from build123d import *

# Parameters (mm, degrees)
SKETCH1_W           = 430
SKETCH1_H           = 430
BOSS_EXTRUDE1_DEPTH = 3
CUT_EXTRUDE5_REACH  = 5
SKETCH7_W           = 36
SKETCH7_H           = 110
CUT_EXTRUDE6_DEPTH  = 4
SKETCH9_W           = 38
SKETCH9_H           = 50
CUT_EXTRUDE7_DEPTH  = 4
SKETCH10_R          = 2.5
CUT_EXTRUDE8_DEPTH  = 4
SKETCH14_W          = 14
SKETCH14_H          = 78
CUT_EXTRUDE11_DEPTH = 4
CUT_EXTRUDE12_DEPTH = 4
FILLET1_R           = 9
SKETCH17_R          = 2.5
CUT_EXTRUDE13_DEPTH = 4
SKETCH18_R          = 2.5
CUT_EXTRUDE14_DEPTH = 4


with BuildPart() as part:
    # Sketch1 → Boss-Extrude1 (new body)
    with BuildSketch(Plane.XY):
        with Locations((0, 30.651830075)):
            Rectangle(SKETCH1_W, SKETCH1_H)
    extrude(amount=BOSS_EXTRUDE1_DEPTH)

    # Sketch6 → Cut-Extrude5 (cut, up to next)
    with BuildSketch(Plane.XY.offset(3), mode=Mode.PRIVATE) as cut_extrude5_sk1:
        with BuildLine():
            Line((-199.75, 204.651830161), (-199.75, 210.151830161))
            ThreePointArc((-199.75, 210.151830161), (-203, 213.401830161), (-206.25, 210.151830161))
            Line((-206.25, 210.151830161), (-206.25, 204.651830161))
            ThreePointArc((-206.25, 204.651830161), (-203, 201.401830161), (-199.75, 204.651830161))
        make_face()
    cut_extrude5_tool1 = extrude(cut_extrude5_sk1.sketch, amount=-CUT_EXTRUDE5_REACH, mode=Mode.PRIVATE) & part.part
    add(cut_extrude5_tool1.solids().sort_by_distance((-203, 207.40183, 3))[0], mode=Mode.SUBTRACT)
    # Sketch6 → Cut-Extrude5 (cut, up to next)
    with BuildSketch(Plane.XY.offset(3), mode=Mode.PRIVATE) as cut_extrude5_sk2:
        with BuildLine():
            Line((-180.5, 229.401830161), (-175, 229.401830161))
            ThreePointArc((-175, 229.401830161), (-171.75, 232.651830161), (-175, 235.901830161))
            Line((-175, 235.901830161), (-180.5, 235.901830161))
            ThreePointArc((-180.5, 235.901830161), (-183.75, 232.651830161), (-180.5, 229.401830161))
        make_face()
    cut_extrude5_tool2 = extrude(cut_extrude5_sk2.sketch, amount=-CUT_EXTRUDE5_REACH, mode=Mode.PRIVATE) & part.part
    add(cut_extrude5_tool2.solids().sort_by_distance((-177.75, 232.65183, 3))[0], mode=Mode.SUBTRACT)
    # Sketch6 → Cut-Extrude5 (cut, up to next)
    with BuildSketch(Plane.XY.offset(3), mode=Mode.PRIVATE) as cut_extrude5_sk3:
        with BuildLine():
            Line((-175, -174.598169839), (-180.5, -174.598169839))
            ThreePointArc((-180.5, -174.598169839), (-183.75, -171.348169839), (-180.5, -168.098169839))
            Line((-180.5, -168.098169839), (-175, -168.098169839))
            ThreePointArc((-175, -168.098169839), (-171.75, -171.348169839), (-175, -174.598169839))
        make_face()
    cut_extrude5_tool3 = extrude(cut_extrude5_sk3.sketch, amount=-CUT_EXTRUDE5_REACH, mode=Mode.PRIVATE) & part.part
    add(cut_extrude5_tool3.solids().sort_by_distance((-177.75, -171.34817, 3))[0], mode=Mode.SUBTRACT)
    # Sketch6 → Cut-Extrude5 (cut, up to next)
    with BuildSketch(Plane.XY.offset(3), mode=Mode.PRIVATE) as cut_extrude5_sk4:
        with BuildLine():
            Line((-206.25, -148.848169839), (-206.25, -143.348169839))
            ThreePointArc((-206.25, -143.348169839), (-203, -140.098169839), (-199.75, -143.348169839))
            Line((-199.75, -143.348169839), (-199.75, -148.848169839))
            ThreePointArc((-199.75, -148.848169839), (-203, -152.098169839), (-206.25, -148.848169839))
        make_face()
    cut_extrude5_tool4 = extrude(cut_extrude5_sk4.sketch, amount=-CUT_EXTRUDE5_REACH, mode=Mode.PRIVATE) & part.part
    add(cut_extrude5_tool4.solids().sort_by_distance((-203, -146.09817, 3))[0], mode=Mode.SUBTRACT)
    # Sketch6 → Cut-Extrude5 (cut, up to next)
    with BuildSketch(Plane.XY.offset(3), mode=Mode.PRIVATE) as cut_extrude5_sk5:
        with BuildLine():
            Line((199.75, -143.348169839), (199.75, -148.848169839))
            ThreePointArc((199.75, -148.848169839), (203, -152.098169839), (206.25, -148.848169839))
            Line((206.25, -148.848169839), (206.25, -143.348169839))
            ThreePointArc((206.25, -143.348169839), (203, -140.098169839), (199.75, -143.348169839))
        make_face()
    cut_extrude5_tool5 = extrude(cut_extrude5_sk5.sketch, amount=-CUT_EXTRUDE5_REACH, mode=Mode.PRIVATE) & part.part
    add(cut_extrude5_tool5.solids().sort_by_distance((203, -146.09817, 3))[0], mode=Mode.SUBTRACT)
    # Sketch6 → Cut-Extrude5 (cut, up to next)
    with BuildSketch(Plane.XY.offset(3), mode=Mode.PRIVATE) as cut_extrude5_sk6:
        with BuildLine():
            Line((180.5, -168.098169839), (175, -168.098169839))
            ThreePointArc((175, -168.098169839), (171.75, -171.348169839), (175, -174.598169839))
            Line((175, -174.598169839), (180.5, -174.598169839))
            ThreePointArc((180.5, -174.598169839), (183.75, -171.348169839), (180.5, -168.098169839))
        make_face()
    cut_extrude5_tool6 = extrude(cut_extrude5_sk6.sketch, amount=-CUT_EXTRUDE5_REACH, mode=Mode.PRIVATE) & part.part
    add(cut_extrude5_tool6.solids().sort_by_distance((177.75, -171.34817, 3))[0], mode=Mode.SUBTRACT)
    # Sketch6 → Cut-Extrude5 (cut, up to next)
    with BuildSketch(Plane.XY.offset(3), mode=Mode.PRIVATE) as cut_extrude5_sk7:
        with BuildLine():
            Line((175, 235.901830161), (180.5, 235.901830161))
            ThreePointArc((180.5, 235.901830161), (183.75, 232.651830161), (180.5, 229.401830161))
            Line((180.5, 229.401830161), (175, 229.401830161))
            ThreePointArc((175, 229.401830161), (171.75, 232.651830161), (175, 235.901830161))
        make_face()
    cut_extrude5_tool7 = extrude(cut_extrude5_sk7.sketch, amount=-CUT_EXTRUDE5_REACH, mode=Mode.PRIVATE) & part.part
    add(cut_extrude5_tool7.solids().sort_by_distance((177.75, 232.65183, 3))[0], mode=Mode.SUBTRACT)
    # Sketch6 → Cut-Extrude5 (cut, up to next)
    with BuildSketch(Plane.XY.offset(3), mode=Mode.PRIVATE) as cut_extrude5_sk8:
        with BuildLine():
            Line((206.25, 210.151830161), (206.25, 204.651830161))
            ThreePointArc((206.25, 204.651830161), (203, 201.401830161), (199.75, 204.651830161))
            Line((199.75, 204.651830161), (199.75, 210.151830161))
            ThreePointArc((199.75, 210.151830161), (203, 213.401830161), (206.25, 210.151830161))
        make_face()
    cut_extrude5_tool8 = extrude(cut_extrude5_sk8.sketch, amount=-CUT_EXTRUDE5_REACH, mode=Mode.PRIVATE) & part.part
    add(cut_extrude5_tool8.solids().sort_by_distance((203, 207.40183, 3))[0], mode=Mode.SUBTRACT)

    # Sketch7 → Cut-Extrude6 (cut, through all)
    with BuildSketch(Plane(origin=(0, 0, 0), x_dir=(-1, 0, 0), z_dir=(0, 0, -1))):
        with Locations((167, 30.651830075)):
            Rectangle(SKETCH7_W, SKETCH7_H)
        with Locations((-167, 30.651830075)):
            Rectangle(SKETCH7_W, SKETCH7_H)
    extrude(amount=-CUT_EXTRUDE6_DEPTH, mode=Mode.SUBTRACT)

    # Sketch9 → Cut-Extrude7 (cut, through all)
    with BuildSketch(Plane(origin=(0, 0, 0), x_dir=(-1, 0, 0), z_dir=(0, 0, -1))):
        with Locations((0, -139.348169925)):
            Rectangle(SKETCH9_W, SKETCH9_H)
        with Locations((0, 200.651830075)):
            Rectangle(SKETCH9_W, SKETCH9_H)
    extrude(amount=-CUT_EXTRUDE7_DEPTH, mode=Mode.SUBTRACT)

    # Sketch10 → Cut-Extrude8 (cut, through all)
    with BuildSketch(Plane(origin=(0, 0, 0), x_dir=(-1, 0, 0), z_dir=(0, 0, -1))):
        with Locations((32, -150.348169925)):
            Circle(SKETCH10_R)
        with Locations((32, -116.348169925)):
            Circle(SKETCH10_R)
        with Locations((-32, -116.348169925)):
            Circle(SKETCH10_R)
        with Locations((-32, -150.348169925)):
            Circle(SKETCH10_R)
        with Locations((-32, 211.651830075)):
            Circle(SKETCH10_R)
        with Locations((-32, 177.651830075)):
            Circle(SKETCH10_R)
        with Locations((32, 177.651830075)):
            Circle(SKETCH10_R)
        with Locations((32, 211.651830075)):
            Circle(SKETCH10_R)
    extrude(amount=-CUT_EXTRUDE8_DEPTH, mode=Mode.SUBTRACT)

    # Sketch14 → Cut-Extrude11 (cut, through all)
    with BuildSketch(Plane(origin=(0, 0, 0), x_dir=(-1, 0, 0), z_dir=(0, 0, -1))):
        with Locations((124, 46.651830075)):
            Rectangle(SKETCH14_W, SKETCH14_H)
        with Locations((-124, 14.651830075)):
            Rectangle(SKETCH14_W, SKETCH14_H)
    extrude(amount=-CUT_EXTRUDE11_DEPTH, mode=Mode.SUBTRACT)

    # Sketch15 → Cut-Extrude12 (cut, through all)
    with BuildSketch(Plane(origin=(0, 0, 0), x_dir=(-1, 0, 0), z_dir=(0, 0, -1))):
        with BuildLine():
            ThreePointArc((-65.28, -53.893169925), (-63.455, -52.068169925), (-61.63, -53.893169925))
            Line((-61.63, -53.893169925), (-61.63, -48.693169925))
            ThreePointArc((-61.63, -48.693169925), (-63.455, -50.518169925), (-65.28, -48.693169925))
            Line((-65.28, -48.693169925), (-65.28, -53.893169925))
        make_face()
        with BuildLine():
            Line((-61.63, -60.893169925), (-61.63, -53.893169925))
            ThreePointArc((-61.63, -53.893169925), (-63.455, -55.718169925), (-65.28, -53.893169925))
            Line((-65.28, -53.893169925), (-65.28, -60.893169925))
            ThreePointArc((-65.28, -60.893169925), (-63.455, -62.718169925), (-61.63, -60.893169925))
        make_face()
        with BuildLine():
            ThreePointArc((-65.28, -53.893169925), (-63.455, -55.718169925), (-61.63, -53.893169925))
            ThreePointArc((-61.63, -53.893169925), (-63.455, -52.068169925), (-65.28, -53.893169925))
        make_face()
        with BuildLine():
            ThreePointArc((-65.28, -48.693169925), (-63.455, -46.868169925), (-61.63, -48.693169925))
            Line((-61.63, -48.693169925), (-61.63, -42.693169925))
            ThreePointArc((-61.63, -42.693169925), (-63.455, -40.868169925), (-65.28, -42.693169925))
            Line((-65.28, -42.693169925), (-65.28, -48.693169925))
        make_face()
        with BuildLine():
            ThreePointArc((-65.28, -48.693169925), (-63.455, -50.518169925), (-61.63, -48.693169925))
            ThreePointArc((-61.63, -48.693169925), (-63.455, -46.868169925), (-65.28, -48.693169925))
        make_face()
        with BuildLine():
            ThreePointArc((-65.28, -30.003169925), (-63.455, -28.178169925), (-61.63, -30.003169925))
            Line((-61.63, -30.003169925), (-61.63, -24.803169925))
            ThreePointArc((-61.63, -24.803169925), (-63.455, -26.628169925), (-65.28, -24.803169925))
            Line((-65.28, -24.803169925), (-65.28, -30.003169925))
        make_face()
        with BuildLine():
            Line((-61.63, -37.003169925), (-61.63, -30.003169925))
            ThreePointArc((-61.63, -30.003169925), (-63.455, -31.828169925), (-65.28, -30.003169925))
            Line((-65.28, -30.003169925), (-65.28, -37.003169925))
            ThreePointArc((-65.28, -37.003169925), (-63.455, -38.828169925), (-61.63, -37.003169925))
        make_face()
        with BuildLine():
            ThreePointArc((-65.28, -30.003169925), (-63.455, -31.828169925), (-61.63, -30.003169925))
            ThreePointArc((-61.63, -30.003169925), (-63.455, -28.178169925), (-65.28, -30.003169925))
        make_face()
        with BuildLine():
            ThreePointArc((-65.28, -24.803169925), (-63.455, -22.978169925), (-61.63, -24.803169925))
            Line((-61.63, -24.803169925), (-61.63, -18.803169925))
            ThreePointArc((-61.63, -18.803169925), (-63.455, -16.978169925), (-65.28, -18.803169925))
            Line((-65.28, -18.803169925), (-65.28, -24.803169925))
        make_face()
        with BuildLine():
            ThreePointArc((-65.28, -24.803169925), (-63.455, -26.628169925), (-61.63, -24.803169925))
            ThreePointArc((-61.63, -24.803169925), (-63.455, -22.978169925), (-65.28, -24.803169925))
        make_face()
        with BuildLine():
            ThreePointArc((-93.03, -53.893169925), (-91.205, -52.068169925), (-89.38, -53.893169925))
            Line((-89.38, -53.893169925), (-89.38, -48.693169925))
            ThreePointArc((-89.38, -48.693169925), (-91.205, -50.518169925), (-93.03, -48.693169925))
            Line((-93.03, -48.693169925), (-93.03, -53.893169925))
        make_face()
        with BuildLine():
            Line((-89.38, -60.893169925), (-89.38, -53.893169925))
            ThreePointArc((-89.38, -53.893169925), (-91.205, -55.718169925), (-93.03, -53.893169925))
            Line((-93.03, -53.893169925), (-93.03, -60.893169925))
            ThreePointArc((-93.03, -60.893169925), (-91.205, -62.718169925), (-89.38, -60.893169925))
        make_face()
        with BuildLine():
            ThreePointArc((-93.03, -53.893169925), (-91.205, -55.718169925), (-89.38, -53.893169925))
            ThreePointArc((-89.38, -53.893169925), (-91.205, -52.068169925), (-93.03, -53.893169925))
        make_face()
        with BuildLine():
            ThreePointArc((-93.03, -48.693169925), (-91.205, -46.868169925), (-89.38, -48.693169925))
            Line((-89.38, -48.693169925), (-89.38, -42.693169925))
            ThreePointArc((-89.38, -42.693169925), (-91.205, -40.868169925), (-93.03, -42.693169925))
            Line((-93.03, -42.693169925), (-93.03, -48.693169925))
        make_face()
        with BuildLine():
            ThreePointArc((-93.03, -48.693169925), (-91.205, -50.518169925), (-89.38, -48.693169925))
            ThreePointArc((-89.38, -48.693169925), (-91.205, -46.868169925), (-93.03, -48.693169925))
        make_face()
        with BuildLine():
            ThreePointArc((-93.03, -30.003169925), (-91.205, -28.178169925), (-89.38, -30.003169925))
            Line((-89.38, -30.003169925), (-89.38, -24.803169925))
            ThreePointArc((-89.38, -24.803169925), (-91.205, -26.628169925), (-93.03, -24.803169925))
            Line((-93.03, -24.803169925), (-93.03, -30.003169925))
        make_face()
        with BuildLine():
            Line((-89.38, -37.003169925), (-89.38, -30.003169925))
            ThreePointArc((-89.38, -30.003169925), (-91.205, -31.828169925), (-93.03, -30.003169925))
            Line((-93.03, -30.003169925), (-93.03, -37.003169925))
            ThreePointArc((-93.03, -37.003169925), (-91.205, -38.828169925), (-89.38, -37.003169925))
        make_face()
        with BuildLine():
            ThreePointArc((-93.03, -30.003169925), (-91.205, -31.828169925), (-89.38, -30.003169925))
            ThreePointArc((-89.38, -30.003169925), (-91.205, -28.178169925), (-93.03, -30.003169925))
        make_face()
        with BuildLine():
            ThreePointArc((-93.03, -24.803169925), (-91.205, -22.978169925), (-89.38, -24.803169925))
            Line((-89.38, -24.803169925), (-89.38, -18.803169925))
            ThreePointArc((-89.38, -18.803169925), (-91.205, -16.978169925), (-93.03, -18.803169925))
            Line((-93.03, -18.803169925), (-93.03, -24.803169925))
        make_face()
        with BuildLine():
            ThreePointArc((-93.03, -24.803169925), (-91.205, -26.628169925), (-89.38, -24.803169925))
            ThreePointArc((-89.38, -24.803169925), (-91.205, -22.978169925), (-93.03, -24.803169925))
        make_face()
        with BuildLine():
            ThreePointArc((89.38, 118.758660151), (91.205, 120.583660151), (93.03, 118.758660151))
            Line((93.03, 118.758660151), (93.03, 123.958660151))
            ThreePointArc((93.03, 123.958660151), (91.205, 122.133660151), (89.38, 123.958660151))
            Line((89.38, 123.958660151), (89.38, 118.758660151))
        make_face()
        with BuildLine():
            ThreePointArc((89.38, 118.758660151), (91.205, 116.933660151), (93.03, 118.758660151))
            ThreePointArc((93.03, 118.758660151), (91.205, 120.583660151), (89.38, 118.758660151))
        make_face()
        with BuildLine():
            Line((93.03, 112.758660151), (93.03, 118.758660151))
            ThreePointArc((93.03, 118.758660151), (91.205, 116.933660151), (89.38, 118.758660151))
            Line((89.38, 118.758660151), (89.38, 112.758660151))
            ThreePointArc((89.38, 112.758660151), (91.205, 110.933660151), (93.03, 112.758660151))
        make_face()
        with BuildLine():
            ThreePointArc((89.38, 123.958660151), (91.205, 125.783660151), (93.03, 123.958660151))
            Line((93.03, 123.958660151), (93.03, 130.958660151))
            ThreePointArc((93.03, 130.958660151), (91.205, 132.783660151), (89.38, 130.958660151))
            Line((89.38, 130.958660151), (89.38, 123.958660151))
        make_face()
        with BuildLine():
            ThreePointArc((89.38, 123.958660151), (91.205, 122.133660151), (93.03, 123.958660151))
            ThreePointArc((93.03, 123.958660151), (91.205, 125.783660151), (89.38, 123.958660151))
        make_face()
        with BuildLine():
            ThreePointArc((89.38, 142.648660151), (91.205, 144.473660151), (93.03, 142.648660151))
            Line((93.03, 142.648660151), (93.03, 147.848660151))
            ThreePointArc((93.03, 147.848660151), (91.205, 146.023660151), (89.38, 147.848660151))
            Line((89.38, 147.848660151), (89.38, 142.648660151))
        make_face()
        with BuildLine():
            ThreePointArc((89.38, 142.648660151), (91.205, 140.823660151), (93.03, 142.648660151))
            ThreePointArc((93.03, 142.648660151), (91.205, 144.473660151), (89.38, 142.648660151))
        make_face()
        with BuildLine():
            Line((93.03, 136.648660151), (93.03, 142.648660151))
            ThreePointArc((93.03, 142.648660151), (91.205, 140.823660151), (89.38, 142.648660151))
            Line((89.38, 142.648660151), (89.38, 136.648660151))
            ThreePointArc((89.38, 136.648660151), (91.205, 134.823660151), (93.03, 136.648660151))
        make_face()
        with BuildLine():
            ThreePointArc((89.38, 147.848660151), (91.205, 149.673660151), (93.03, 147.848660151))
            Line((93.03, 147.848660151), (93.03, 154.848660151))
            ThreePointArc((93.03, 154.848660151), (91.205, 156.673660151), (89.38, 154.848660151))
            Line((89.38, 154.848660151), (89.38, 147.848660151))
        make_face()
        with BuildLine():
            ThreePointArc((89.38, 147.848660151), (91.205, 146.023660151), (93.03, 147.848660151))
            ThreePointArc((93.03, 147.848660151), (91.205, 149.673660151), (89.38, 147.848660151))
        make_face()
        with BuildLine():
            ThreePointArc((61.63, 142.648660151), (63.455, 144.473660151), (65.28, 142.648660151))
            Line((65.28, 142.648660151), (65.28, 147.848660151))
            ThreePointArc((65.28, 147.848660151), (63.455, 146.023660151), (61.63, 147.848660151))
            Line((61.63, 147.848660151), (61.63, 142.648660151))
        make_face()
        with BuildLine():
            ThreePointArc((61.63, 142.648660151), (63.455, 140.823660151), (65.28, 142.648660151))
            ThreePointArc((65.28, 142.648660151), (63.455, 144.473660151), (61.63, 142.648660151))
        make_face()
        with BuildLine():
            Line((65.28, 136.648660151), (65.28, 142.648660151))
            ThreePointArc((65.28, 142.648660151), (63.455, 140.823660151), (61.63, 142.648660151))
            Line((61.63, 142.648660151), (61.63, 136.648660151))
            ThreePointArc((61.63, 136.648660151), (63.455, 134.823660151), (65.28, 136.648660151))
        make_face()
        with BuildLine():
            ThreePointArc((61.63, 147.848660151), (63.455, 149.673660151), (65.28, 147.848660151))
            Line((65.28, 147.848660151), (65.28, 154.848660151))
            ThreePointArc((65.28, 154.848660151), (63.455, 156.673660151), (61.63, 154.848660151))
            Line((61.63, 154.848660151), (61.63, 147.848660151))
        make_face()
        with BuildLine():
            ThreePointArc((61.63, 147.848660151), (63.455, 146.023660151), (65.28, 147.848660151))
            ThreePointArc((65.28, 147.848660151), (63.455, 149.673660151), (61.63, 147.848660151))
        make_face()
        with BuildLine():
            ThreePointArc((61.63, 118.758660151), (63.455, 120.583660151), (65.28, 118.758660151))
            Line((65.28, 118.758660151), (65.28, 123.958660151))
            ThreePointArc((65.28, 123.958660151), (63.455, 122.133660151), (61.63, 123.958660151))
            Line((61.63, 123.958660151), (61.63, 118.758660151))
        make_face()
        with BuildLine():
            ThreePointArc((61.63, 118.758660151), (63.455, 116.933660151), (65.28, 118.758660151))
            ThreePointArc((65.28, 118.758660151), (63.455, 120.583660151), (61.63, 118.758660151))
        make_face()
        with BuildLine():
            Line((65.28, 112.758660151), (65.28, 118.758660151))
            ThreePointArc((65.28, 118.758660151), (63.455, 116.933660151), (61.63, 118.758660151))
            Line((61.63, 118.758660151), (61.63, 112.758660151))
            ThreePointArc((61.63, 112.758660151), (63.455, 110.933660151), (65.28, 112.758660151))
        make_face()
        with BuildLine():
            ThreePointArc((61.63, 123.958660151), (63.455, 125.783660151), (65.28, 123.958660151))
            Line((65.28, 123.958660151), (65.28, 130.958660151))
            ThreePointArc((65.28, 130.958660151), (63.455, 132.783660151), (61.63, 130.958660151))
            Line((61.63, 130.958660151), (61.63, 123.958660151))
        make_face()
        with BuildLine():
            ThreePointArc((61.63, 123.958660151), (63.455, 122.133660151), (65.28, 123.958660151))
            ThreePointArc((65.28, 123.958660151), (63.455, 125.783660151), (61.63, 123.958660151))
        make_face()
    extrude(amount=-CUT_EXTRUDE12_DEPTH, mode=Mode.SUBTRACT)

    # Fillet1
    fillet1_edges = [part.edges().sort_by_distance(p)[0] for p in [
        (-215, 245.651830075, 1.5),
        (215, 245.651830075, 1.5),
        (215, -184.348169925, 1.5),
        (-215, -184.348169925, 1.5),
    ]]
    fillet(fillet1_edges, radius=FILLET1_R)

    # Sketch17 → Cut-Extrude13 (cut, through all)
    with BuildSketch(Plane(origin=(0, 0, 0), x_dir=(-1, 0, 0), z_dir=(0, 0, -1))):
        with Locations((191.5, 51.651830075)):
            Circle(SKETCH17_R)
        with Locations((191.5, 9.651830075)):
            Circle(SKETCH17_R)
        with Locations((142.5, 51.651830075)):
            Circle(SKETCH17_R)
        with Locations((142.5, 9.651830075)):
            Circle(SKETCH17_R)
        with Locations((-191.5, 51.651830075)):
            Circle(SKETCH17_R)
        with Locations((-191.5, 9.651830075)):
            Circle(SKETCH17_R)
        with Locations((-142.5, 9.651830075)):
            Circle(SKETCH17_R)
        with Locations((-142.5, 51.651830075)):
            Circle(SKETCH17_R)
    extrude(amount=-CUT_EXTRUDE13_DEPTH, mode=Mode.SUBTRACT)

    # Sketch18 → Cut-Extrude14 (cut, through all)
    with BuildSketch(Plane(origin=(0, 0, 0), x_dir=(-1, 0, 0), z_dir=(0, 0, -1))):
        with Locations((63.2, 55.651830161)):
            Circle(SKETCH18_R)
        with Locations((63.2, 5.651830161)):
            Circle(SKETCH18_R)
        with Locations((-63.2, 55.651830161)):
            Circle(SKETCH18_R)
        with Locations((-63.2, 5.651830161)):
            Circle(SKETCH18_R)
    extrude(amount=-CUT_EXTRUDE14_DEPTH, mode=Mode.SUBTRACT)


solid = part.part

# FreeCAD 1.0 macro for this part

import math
import FreeCAD as App
import Part
import Sketcher

V = App.Vector
Q = App.Units.Quantity


def edges_at(feature, points):
    """Names of the edges that pass closest to the given points."""
    edges = feature.Shape.Edges
    near = lambda p: min(range(len(edges)), key=lambda i: edges[i].distToShape(Part.Vertex(*p))[0])
    return sorted({f"Edge{near(p) + 1}" for p in points})


def add_polygon(sketch, points):
    """Adds a closed chain of lines whose ends are joined by coincident constraints."""
    first, n = sketch.GeometryCount, len(points)
    for a, b in zip(points, points[1:] + points[:1]):
        sketch.addGeometry(Part.LineSegment(App.Vector(*a, 0), App.Vector(*b, 0)), False)
    for i in range(n):
        sketch.addConstraint(Sketcher.Constraint("Coincident", first + i, 2, first + (i + 1) % n, 1))

doc = App.newDocument("Part")
body = doc.addObject("PartDesign::Body", "Body")

# Sketch on XY plane
sketch1 = doc.addObject("Sketcher::SketchObject", "Sketch")
body.addObject(sketch1)
sketch1.AttachmentSupport = (doc.XY_Plane, [""])
sketch1.MapMode = "FlatFace"
add_polygon(sketch1, [(-215, 246), (-215, -184), (215, -184), (215, 246)])  # lines 0-3
sketch1.addConstraint(Sketcher.Constraint("Vertical", 0))
sketch1.addConstraint(Sketcher.Constraint("Horizontal", 1))
sketch1.addConstraint(Sketcher.Constraint("Vertical", 2))
sketch1.addConstraint(Sketcher.Constraint("Horizontal", 3))
sketch1.addConstraint(Sketcher.Constraint("Equal", 3, 0))
sketch1.addConstraint(Sketcher.Constraint("DistanceX", 1, 1, 1, 2, Q("430 mm")))
sketch1.addConstraint(Sketcher.Constraint("DistanceX", 0, 2, -1, 1, Q("215 mm")))
sketch1.addConstraint(Sketcher.Constraint("DistanceY", 0, 2, -1, 1, Q("184.34817 mm")))
pad1 = doc.addObject("PartDesign::Pad", "Pad")
body.addObject(pad1)
pad1.Profile = sketch1
pad1.Length = 3

# Sketch on XY plane
sketch2 = doc.addObject("Sketcher::SketchObject", "Sketch001")
body.addObject(sketch2)
sketch2.AttachmentSupport = (doc.XY_Plane, [""])
sketch2.MapMode = "FlatFace"
sketch2.AttachmentOffset = App.Placement(V(0, 0, 3), App.Rotation())
sketch2.addGeometry(Part.LineSegment(V(-199.8, 204.7, 0), V(-199.8, 210.2, 0)), False)
sketch2.addGeometry(Part.ArcOfCircle(Part.Circle(V(-203, 210.2, 0), V(0, 0, 1), 3.2), math.radians(0), math.radians(180)), False)
sketch2.addGeometry(Part.LineSegment(V(-206.2, 210.2, 0), V(-206.2, 204.7, 0)), False)
sketch2.addGeometry(Part.ArcOfCircle(Part.Circle(V(-203, 204.7, 0), V(0, 0, 1), 3.2), math.radians(180), math.radians(360)), False)
sketch2.addConstraint(Sketcher.Constraint("Tangent", 0, 2, 1, 1))
sketch2.addConstraint(Sketcher.Constraint("Tangent", 1, 2, 2, 1))
sketch2.addConstraint(Sketcher.Constraint("Tangent", 2, 2, 3, 1))
sketch2.addConstraint(Sketcher.Constraint("Tangent", 3, 2, 0, 1))
sketch2.addConstraint(Sketcher.Constraint("Vertical", 0))
sketch2.addConstraint(Sketcher.Constraint("Vertical", 2))
sketch2.addConstraint(Sketcher.Constraint("Radius", 1, Q("3.25 mm")))
sketch2.addConstraint(Sketcher.Constraint("DistanceY", 0, 1, 0, 2, Q("5.5 mm")))
sketch2.addConstraint(Sketcher.Constraint("DistanceX", 1, 3, -1, 1, Q("203 mm")))
sketch2.addConstraint(Sketcher.Constraint("DistanceY", -1, 1, 1, 3, Q("210.15183 mm")))
pocket1 = doc.addObject("PartDesign::Pocket", "Pocket")
body.addObject(pocket1)
pocket1.Profile = sketch2
pocket1.Type = "UpToFirst"

# Sketch on XY plane
sketch3 = doc.addObject("Sketcher::SketchObject", "Sketch002")
body.addObject(sketch3)
sketch3.AttachmentSupport = (doc.XY_Plane, [""])
sketch3.MapMode = "FlatFace"
sketch3.AttachmentOffset = App.Placement(V(0, 0, 3), App.Rotation())
sketch3.addGeometry(Part.LineSegment(V(-180.5, 229.4, 0), V(-175, 229.4, 0)), False)
sketch3.addGeometry(Part.ArcOfCircle(Part.Circle(V(-175, 232.7, 0), V(0, 0, 1), 3.2), math.radians(-90), math.radians(90)), False)
sketch3.addGeometry(Part.LineSegment(V(-175, 235.9, 0), V(-180.5, 235.9, 0)), False)
sketch3.addGeometry(Part.ArcOfCircle(Part.Circle(V(-180.5, 232.7, 0), V(0, 0, 1), 3.2), math.radians(90), math.radians(270)), False)
sketch3.addConstraint(Sketcher.Constraint("Tangent", 0, 2, 1, 1))
sketch3.addConstraint(Sketcher.Constraint("Tangent", 1, 2, 2, 1))
sketch3.addConstraint(Sketcher.Constraint("Tangent", 2, 2, 3, 1))
sketch3.addConstraint(Sketcher.Constraint("Tangent", 3, 2, 0, 1))
sketch3.addConstraint(Sketcher.Constraint("Horizontal", 0))
sketch3.addConstraint(Sketcher.Constraint("Horizontal", 2))
sketch3.addConstraint(Sketcher.Constraint("Radius", 1, Q("3.25 mm")))
sketch3.addConstraint(Sketcher.Constraint("DistanceX", 0, 1, 0, 2, Q("5.5 mm")))
sketch3.addConstraint(Sketcher.Constraint("DistanceX", 1, 3, -1, 1, Q("175 mm")))
sketch3.addConstraint(Sketcher.Constraint("DistanceY", -1, 1, 1, 3, Q("232.65183 mm")))
pocket2 = doc.addObject("PartDesign::Pocket", "Pocket001")
body.addObject(pocket2)
pocket2.Profile = sketch3
pocket2.Type = "UpToFirst"

# Sketch on XY plane
sketch4 = doc.addObject("Sketcher::SketchObject", "Sketch003")
body.addObject(sketch4)
sketch4.AttachmentSupport = (doc.XY_Plane, [""])
sketch4.MapMode = "FlatFace"
sketch4.AttachmentOffset = App.Placement(V(0, 0, 3), App.Rotation())
sketch4.addGeometry(Part.LineSegment(V(-180.5, -174.6, 0), V(-175, -174.6, 0)), False)
sketch4.addGeometry(Part.ArcOfCircle(Part.Circle(V(-175, -171.3, 0), V(0, 0, 1), 3.2), math.radians(-90), math.radians(90)), False)
sketch4.addGeometry(Part.LineSegment(V(-175, -168.1, 0), V(-180.5, -168.1, 0)), False)
sketch4.addGeometry(Part.ArcOfCircle(Part.Circle(V(-180.5, -171.3, 0), V(0, 0, 1), 3.2), math.radians(90), math.radians(270)), False)
sketch4.addConstraint(Sketcher.Constraint("Tangent", 0, 2, 1, 1))
sketch4.addConstraint(Sketcher.Constraint("Tangent", 1, 2, 2, 1))
sketch4.addConstraint(Sketcher.Constraint("Tangent", 2, 2, 3, 1))
sketch4.addConstraint(Sketcher.Constraint("Tangent", 3, 2, 0, 1))
sketch4.addConstraint(Sketcher.Constraint("Horizontal", 0))
sketch4.addConstraint(Sketcher.Constraint("Horizontal", 2))
sketch4.addConstraint(Sketcher.Constraint("Radius", 1, Q("3.25 mm")))
sketch4.addConstraint(Sketcher.Constraint("DistanceX", 0, 1, 0, 2, Q("5.5 mm")))
sketch4.addConstraint(Sketcher.Constraint("DistanceX", 1, 3, -1, 1, Q("175 mm")))
sketch4.addConstraint(Sketcher.Constraint("DistanceY", 1, 3, -1, 1, Q("171.34817 mm")))
pocket3 = doc.addObject("PartDesign::Pocket", "Pocket002")
body.addObject(pocket3)
pocket3.Profile = sketch4
pocket3.Type = "UpToFirst"

# Sketch on XY plane
sketch5 = doc.addObject("Sketcher::SketchObject", "Sketch004")
body.addObject(sketch5)
sketch5.AttachmentSupport = (doc.XY_Plane, [""])
sketch5.MapMode = "FlatFace"
sketch5.AttachmentOffset = App.Placement(V(0, 0, 3), App.Rotation())
sketch5.addGeometry(Part.LineSegment(V(-206.2, -143.3, 0), V(-206.2, -148.8, 0)), False)
sketch5.addGeometry(Part.ArcOfCircle(Part.Circle(V(-203, -148.8, 0), V(0, 0, 1), 3.2), math.radians(180), math.radians(360)), False)
sketch5.addGeometry(Part.LineSegment(V(-199.8, -148.8, 0), V(-199.8, -143.3, 0)), False)
sketch5.addGeometry(Part.ArcOfCircle(Part.Circle(V(-203, -143.3, 0), V(0, 0, 1), 3.2), math.radians(0), math.radians(180)), False)
sketch5.addConstraint(Sketcher.Constraint("Tangent", 0, 2, 1, 1))
sketch5.addConstraint(Sketcher.Constraint("Tangent", 1, 2, 2, 1))
sketch5.addConstraint(Sketcher.Constraint("Tangent", 2, 2, 3, 1))
sketch5.addConstraint(Sketcher.Constraint("Tangent", 3, 2, 0, 1))
sketch5.addConstraint(Sketcher.Constraint("Vertical", 0))
sketch5.addConstraint(Sketcher.Constraint("Vertical", 2))
sketch5.addConstraint(Sketcher.Constraint("Radius", 1, Q("3.25 mm")))
sketch5.addConstraint(Sketcher.Constraint("DistanceY", 0, 2, 0, 1, Q("5.5 mm")))
sketch5.addConstraint(Sketcher.Constraint("DistanceX", 1, 3, -1, 1, Q("203 mm")))
sketch5.addConstraint(Sketcher.Constraint("DistanceY", 1, 3, -1, 1, Q("148.84817 mm")))
pocket4 = doc.addObject("PartDesign::Pocket", "Pocket003")
body.addObject(pocket4)
pocket4.Profile = sketch5
pocket4.Type = "UpToFirst"

# Sketch on XY plane
sketch6 = doc.addObject("Sketcher::SketchObject", "Sketch005")
body.addObject(sketch6)
sketch6.AttachmentSupport = (doc.XY_Plane, [""])
sketch6.MapMode = "FlatFace"
sketch6.AttachmentOffset = App.Placement(V(0, 0, 3), App.Rotation())
sketch6.addGeometry(Part.LineSegment(V(199.8, -143.3, 0), V(199.8, -148.8, 0)), False)
sketch6.addGeometry(Part.ArcOfCircle(Part.Circle(V(203, -148.8, 0), V(0, 0, 1), 3.2), math.radians(180), math.radians(360)), False)
sketch6.addGeometry(Part.LineSegment(V(206.2, -148.8, 0), V(206.2, -143.3, 0)), False)
sketch6.addGeometry(Part.ArcOfCircle(Part.Circle(V(203, -143.3, 0), V(0, 0, 1), 3.2), math.radians(0), math.radians(180)), False)
sketch6.addConstraint(Sketcher.Constraint("Tangent", 0, 2, 1, 1))
sketch6.addConstraint(Sketcher.Constraint("Tangent", 1, 2, 2, 1))
sketch6.addConstraint(Sketcher.Constraint("Tangent", 2, 2, 3, 1))
sketch6.addConstraint(Sketcher.Constraint("Tangent", 3, 2, 0, 1))
sketch6.addConstraint(Sketcher.Constraint("Vertical", 0))
sketch6.addConstraint(Sketcher.Constraint("Vertical", 2))
sketch6.addConstraint(Sketcher.Constraint("Radius", 1, Q("3.25 mm")))
sketch6.addConstraint(Sketcher.Constraint("DistanceY", 0, 2, 0, 1, Q("5.5 mm")))
sketch6.addConstraint(Sketcher.Constraint("DistanceX", -1, 1, 1, 3, Q("203 mm")))
sketch6.addConstraint(Sketcher.Constraint("DistanceY", 1, 3, -1, 1, Q("148.84817 mm")))
pocket5 = doc.addObject("PartDesign::Pocket", "Pocket004")
body.addObject(pocket5)
pocket5.Profile = sketch6
pocket5.Type = "UpToFirst"

# Sketch on XY plane
sketch7 = doc.addObject("Sketcher::SketchObject", "Sketch006")
body.addObject(sketch7)
sketch7.AttachmentSupport = (doc.XY_Plane, [""])
sketch7.MapMode = "FlatFace"
sketch7.AttachmentOffset = App.Placement(V(0, 0, 3), App.Rotation())
sketch7.addGeometry(Part.LineSegment(V(180.5, -168.1, 0), V(175, -168.1, 0)), False)
sketch7.addGeometry(Part.ArcOfCircle(Part.Circle(V(175, -171.3, 0), V(0, 0, 1), 3.2), math.radians(90), math.radians(270)), False)
sketch7.addGeometry(Part.LineSegment(V(175, -174.6, 0), V(180.5, -174.6, 0)), False)
sketch7.addGeometry(Part.ArcOfCircle(Part.Circle(V(180.5, -171.3, 0), V(0, 0, 1), 3.2), math.radians(-90), math.radians(90)), False)
sketch7.addConstraint(Sketcher.Constraint("Tangent", 0, 2, 1, 1))
sketch7.addConstraint(Sketcher.Constraint("Tangent", 1, 2, 2, 1))
sketch7.addConstraint(Sketcher.Constraint("Tangent", 2, 2, 3, 1))
sketch7.addConstraint(Sketcher.Constraint("Tangent", 3, 2, 0, 1))
sketch7.addConstraint(Sketcher.Constraint("Horizontal", 0))
sketch7.addConstraint(Sketcher.Constraint("Horizontal", 2))
sketch7.addConstraint(Sketcher.Constraint("Radius", 1, Q("3.25 mm")))
sketch7.addConstraint(Sketcher.Constraint("DistanceX", 0, 2, 0, 1, Q("5.5 mm")))
sketch7.addConstraint(Sketcher.Constraint("DistanceX", -1, 1, 1, 3, Q("175 mm")))
sketch7.addConstraint(Sketcher.Constraint("DistanceY", 1, 3, -1, 1, Q("171.34817 mm")))
pocket6 = doc.addObject("PartDesign::Pocket", "Pocket005")
body.addObject(pocket6)
pocket6.Profile = sketch7
pocket6.Type = "UpToFirst"

# Sketch on XY plane
sketch8 = doc.addObject("Sketcher::SketchObject", "Sketch007")
body.addObject(sketch8)
sketch8.AttachmentSupport = (doc.XY_Plane, [""])
sketch8.MapMode = "FlatFace"
sketch8.AttachmentOffset = App.Placement(V(0, 0, 3), App.Rotation())
sketch8.addGeometry(Part.LineSegment(V(180.5, 235.9, 0), V(175, 235.9, 0)), False)
sketch8.addGeometry(Part.ArcOfCircle(Part.Circle(V(175, 232.7, 0), V(0, 0, 1), 3.2), math.radians(90), math.radians(270)), False)
sketch8.addGeometry(Part.LineSegment(V(175, 229.4, 0), V(180.5, 229.4, 0)), False)
sketch8.addGeometry(Part.ArcOfCircle(Part.Circle(V(180.5, 232.7, 0), V(0, 0, 1), 3.2), math.radians(-90), math.radians(90)), False)
sketch8.addConstraint(Sketcher.Constraint("Tangent", 0, 2, 1, 1))
sketch8.addConstraint(Sketcher.Constraint("Tangent", 1, 2, 2, 1))
sketch8.addConstraint(Sketcher.Constraint("Tangent", 2, 2, 3, 1))
sketch8.addConstraint(Sketcher.Constraint("Tangent", 3, 2, 0, 1))
sketch8.addConstraint(Sketcher.Constraint("Horizontal", 0))
sketch8.addConstraint(Sketcher.Constraint("Horizontal", 2))
sketch8.addConstraint(Sketcher.Constraint("Radius", 1, Q("3.25 mm")))
sketch8.addConstraint(Sketcher.Constraint("DistanceX", 0, 2, 0, 1, Q("5.5 mm")))
sketch8.addConstraint(Sketcher.Constraint("DistanceX", -1, 1, 1, 3, Q("175 mm")))
sketch8.addConstraint(Sketcher.Constraint("DistanceY", -1, 1, 1, 3, Q("232.65183 mm")))
pocket7 = doc.addObject("PartDesign::Pocket", "Pocket006")
body.addObject(pocket7)
pocket7.Profile = sketch8
pocket7.Type = "UpToFirst"

# Sketch on XY plane
sketch9 = doc.addObject("Sketcher::SketchObject", "Sketch008")
body.addObject(sketch9)
sketch9.AttachmentSupport = (doc.XY_Plane, [""])
sketch9.MapMode = "FlatFace"
sketch9.AttachmentOffset = App.Placement(V(0, 0, 3), App.Rotation())
sketch9.addGeometry(Part.LineSegment(V(206.2, 204.7, 0), V(206.2, 210.2, 0)), False)
sketch9.addGeometry(Part.ArcOfCircle(Part.Circle(V(203, 210.2, 0), V(0, 0, 1), 3.2), math.radians(0), math.radians(180)), False)
sketch9.addGeometry(Part.LineSegment(V(199.8, 210.2, 0), V(199.8, 204.7, 0)), False)
sketch9.addGeometry(Part.ArcOfCircle(Part.Circle(V(203, 204.7, 0), V(0, 0, 1), 3.2), math.radians(180), math.radians(360)), False)
sketch9.addConstraint(Sketcher.Constraint("Tangent", 0, 2, 1, 1))
sketch9.addConstraint(Sketcher.Constraint("Tangent", 1, 2, 2, 1))
sketch9.addConstraint(Sketcher.Constraint("Tangent", 2, 2, 3, 1))
sketch9.addConstraint(Sketcher.Constraint("Tangent", 3, 2, 0, 1))
sketch9.addConstraint(Sketcher.Constraint("Vertical", 0))
sketch9.addConstraint(Sketcher.Constraint("Vertical", 2))
sketch9.addConstraint(Sketcher.Constraint("Radius", 1, Q("3.25 mm")))
sketch9.addConstraint(Sketcher.Constraint("DistanceY", 0, 1, 0, 2, Q("5.5 mm")))
sketch9.addConstraint(Sketcher.Constraint("DistanceX", -1, 1, 1, 3, Q("203 mm")))
sketch9.addConstraint(Sketcher.Constraint("DistanceY", -1, 1, 1, 3, Q("210.15183 mm")))
pocket8 = doc.addObject("PartDesign::Pocket", "Pocket007")
body.addObject(pocket8)
pocket8.Profile = sketch9
pocket8.Type = "UpToFirst"

# Sketch on XY plane
sketch10 = doc.addObject("Sketcher::SketchObject", "Sketch009")
body.addObject(sketch10)
sketch10.AttachmentSupport = (doc.XY_Plane, [""])
sketch10.MapMode = "FlatFace"
add_polygon(sketch10, [(-149, 86), (-149, -24), (-185, -24), (-185, 86)])  # lines 0-3
add_polygon(sketch10, [(185, 86), (185, -24), (149, -24), (149, 86)])  # lines 4-7
sketch10.addConstraint(Sketcher.Constraint("Vertical", 0))
sketch10.addConstraint(Sketcher.Constraint("Horizontal", 1))
sketch10.addConstraint(Sketcher.Constraint("Vertical", 2))
sketch10.addConstraint(Sketcher.Constraint("Horizontal", 3))
sketch10.addConstraint(Sketcher.Constraint("Vertical", 4))
sketch10.addConstraint(Sketcher.Constraint("Horizontal", 5))
sketch10.addConstraint(Sketcher.Constraint("Vertical", 6))
sketch10.addConstraint(Sketcher.Constraint("Horizontal", 7))
sketch10.addConstraint(Sketcher.Constraint("Symmetric", 1, 2, 4, 2, -2))
sketch10.addConstraint(Sketcher.Constraint("Symmetric", 3, 2, 6, 2, -2))
sketch10.addConstraint(Sketcher.Constraint("DistanceX", 1, 2, 1, 1, Q("36 mm")))
sketch10.addConstraint(Sketcher.Constraint("DistanceY", 0, 2, 0, 1, Q("110 mm")))
sketch10.addConstraint(Sketcher.Constraint("DistanceX", 0, 2, -1, 1, Q("149 mm")))
sketch10.addConstraint(Sketcher.Constraint("DistanceY", 0, 2, -1, 1, Q("24.34817 mm")))
pocket9 = doc.addObject("PartDesign::Pocket", "Pocket008")
body.addObject(pocket9)
pocket9.Profile = sketch10
pocket9.Type = "ThroughAll"
pocket9.Reversed = True

# Sketch on XY plane
sketch11 = doc.addObject("Sketcher::SketchObject", "Sketch010")
body.addObject(sketch11)
sketch11.AttachmentSupport = (doc.XY_Plane, [""])
sketch11.MapMode = "FlatFace"
add_polygon(sketch11, [(19, -114), (19, -164), (-19, -164), (-19, -114)])  # lines 0-3
add_polygon(sketch11, [(19, 226), (19, 176), (-19, 176), (-19, 226)])  # lines 4-7
sketch11.addConstraint(Sketcher.Constraint("Vertical", 0))
sketch11.addConstraint(Sketcher.Constraint("Horizontal", 1))
sketch11.addConstraint(Sketcher.Constraint("Vertical", 2))
sketch11.addConstraint(Sketcher.Constraint("Horizontal", 3))
sketch11.addConstraint(Sketcher.Constraint("Vertical", 4))
sketch11.addConstraint(Sketcher.Constraint("Horizontal", 5))
sketch11.addConstraint(Sketcher.Constraint("Vertical", 6))
sketch11.addConstraint(Sketcher.Constraint("Horizontal", 7))
sketch11.addConstraint(Sketcher.Constraint("Vertical", 3, 2, 4, 2))
sketch11.addConstraint(Sketcher.Constraint("Vertical", 2, 2, 5, 2))
sketch11.addConstraint(Sketcher.Constraint("Equal", 2, 4))
sketch11.addConstraint(Sketcher.Constraint("DistanceX", 1, 2, 1, 1, Q("38 mm")))
sketch11.addConstraint(Sketcher.Constraint("DistanceY", 0, 2, 0, 1, Q("50 mm")))
sketch11.addConstraint(Sketcher.Constraint("DistanceX", -1, 1, 0, 2, Q("19 mm")))
sketch11.addConstraint(Sketcher.Constraint("DistanceY", 3, 2, 4, 2, Q("290 mm")))
sketch11.addConstraint(Sketcher.Constraint("DistanceY", 0, 2, -1, 1, Q("164.34817 mm")))
pocket10 = doc.addObject("PartDesign::Pocket", "Pocket009")
body.addObject(pocket10)
pocket10.Profile = sketch11
pocket10.Type = "ThroughAll"
pocket10.Reversed = True

# Sketch on XY plane
sketch12 = doc.addObject("Sketcher::SketchObject", "Sketch011")
body.addObject(sketch12)
sketch12.AttachmentSupport = (doc.XY_Plane, [""])
sketch12.MapMode = "FlatFace"
sketch12.addGeometry(Part.Circle(V(-32, -150.3, 0), V(0, 0, 1), 2.5), False)
sketch12.addGeometry(Part.Circle(V(-32, -116.3, 0), V(0, 0, 1), 2.5), False)
sketch12.addGeometry(Part.Circle(V(32, -116.3, 0), V(0, 0, 1), 2.5), False)
sketch12.addGeometry(Part.Circle(V(32, -150.3, 0), V(0, 0, 1), 2.5), False)
sketch12.addGeometry(Part.Circle(V(32, 211.7, 0), V(0, 0, 1), 2.5), False)
sketch12.addGeometry(Part.Circle(V(32, 177.7, 0), V(0, 0, 1), 2.5), False)
sketch12.addGeometry(Part.Circle(V(-32, 177.7, 0), V(0, 0, 1), 2.5), False)
sketch12.addGeometry(Part.Circle(V(-32, 211.7, 0), V(0, 0, 1), 2.5), False)
sketch12.addConstraint(Sketcher.Constraint("Equal", 0, 1))
sketch12.addConstraint(Sketcher.Constraint("Equal", 1, 2))
sketch12.addConstraint(Sketcher.Constraint("Equal", 2, 3))
sketch12.addConstraint(Sketcher.Constraint("Equal", 3, 4))
sketch12.addConstraint(Sketcher.Constraint("Equal", 4, 5))
sketch12.addConstraint(Sketcher.Constraint("Equal", 5, 6))
sketch12.addConstraint(Sketcher.Constraint("Equal", 6, 7))
sketch12.addConstraint(Sketcher.Constraint("Symmetric", 1, 3, 2, 3, -2))
sketch12.addConstraint(Sketcher.Constraint("Symmetric", 0, 3, 3, 3, -2))
sketch12.addConstraint(Sketcher.Constraint("Symmetric", 5, 3, 6, 3, -2))
sketch12.addConstraint(Sketcher.Constraint("Symmetric", 4, 3, 7, 3, -2))
sketch12.addConstraint(Sketcher.Constraint("Vertical", 0, 3, 1, 3))
sketch12.addConstraint(Sketcher.Constraint("Vertical", 3, 3, 4, 3))
sketch12.addConstraint(Sketcher.Constraint("Vertical", 4, 3, 5, 3))
sketch12.addConstraint(Sketcher.Constraint("Diameter", 0, Q("5 mm")))
sketch12.addConstraint(Sketcher.Constraint("DistanceX", 0, 3, -1, 1, Q("32 mm")))
sketch12.addConstraint(Sketcher.Constraint("DistanceY", 0, 3, 1, 3, Q("34 mm")))
sketch12.addConstraint(Sketcher.Constraint("DistanceY", 2, 3, 4, 3, Q("328 mm")))
sketch12.addConstraint(Sketcher.Constraint("DistanceY", 5, 3, 4, 3, Q("34 mm")))
sketch12.addConstraint(Sketcher.Constraint("DistanceY", 0, 3, -1, 1, Q("150.34817 mm")))
pocket11 = doc.addObject("PartDesign::Pocket", "Pocket010")
body.addObject(pocket11)
pocket11.Profile = sketch12
pocket11.Type = "ThroughAll"
pocket11.Reversed = True

# Sketch on XY plane
sketch13 = doc.addObject("Sketcher::SketchObject", "Sketch012")
body.addObject(sketch13)
sketch13.AttachmentSupport = (doc.XY_Plane, [""])
sketch13.MapMode = "FlatFace"
add_polygon(sketch13, [(-117, 86), (-117, 8), (-131, 8), (-131, 86)])  # lines 0-3
add_polygon(sketch13, [(131, 54), (131, -24), (117, -24), (117, 54)])  # lines 4-7
sketch13.addConstraint(Sketcher.Constraint("Vertical", 0))
sketch13.addConstraint(Sketcher.Constraint("Horizontal", 1))
sketch13.addConstraint(Sketcher.Constraint("Vertical", 2))
sketch13.addConstraint(Sketcher.Constraint("Horizontal", 3))
sketch13.addConstraint(Sketcher.Constraint("Vertical", 4))
sketch13.addConstraint(Sketcher.Constraint("Horizontal", 5))
sketch13.addConstraint(Sketcher.Constraint("Vertical", 6))
sketch13.addConstraint(Sketcher.Constraint("Horizontal", 7))
sketch13.addConstraint(Sketcher.Constraint("Equal", 3, 5))
sketch13.addConstraint(Sketcher.Constraint("Equal", 2, 4))
sketch13.addConstraint(Sketcher.Constraint("DistanceX", 1, 2, 1, 1, Q("14 mm")))
sketch13.addConstraint(Sketcher.Constraint("DistanceY", 0, 2, 0, 1, Q("78 mm")))
sketch13.addConstraint(Sketcher.Constraint("DistanceX", 0, 2, -1, 1, Q("117 mm")))
sketch13.addConstraint(Sketcher.Constraint("DistanceX", -1, 1, 4, 2, Q("131 mm")))
sketch13.addConstraint(Sketcher.Constraint("DistanceY", 4, 2, 0, 2, Q("32 mm")))
sketch13.addConstraint(Sketcher.Constraint("DistanceY", -1, 1, 0, 2, Q("7.65183 mm")))
pocket12 = doc.addObject("PartDesign::Pocket", "Pocket011")
body.addObject(pocket12)
pocket12.Profile = sketch13
pocket12.Type = "ThroughAll"
pocket12.Reversed = True

# Sketch on XY plane
sketch14 = doc.addObject("Sketcher::SketchObject", "Sketch013")
body.addObject(sketch14)
sketch14.AttachmentSupport = (doc.XY_Plane, [""])
sketch14.MapMode = "FlatFace"
sketch14.addGeometry(Part.ArcOfCircle(Part.Circle(V(63.5, -60.9, 0), V(0, 0, 1), 1.8), math.radians(180), math.radians(360)), False)
sketch14.addGeometry(Part.LineSegment(V(61.6, -60.9, 0), V(61.6, -42.7, 0)), False)
sketch14.addGeometry(Part.ArcOfCircle(Part.Circle(V(63.5, -42.7, 0), V(0, 0, 1), 1.8), math.radians(0), math.radians(180)), False)
sketch14.addGeometry(Part.LineSegment(V(65.3, -42.7, 0), V(65.3, -60.9, 0)), False)
sketch14.addGeometry(Part.ArcOfCircle(Part.Circle(V(63.5, -37, 0), V(0, 0, 1), 1.8), math.radians(180), math.radians(360)), False)
sketch14.addGeometry(Part.LineSegment(V(61.6, -37, 0), V(61.6, -18.8, 0)), False)
sketch14.addGeometry(Part.ArcOfCircle(Part.Circle(V(63.5, -18.8, 0), V(0, 0, 1), 1.8), math.radians(0), math.radians(180)), False)
sketch14.addGeometry(Part.LineSegment(V(65.3, -18.8, 0), V(65.3, -37, 0)), False)
sketch14.addGeometry(Part.ArcOfCircle(Part.Circle(V(91.2, -60.9, 0), V(0, 0, 1), 1.8), math.radians(180), math.radians(360)), False)
sketch14.addGeometry(Part.LineSegment(V(89.4, -60.9, 0), V(89.4, -42.7, 0)), False)
sketch14.addGeometry(Part.ArcOfCircle(Part.Circle(V(91.2, -42.7, 0), V(0, 0, 1), 1.8), math.radians(0), math.radians(180)), False)
sketch14.addGeometry(Part.LineSegment(V(93, -42.7, 0), V(93, -60.9, 0)), False)
sketch14.addGeometry(Part.ArcOfCircle(Part.Circle(V(91.2, -37, 0), V(0, 0, 1), 1.8), math.radians(180), math.radians(360)), False)
sketch14.addGeometry(Part.LineSegment(V(89.4, -37, 0), V(89.4, -18.8, 0)), False)
sketch14.addGeometry(Part.ArcOfCircle(Part.Circle(V(91.2, -18.8, 0), V(0, 0, 1), 1.8), math.radians(0), math.radians(180)), False)
sketch14.addGeometry(Part.LineSegment(V(93, -18.8, 0), V(93, -37, 0)), False)
sketch14.addGeometry(Part.ArcOfCircle(Part.Circle(V(-91.2, 112.8, 0), V(0, 0, 1), 1.8), math.radians(180), math.radians(360)), False)
sketch14.addGeometry(Part.LineSegment(V(-93, 112.8, 0), V(-93, 131, 0)), False)
sketch14.addGeometry(Part.ArcOfCircle(Part.Circle(V(-91.2, 131, 0), V(0, 0, 1), 1.8), math.radians(0), math.radians(180)), False)
sketch14.addGeometry(Part.LineSegment(V(-89.4, 131, 0), V(-89.4, 112.8, 0)), False)
sketch14.addGeometry(Part.ArcOfCircle(Part.Circle(V(-91.2, 136.6, 0), V(0, 0, 1), 1.8), math.radians(180), math.radians(360)), False)
sketch14.addGeometry(Part.LineSegment(V(-93, 136.6, 0), V(-93, 154.8, 0)), False)
sketch14.addGeometry(Part.ArcOfCircle(Part.Circle(V(-91.2, 154.8, 0), V(0, 0, 1), 1.8), math.radians(0), math.radians(180)), False)
sketch14.addGeometry(Part.LineSegment(V(-89.4, 154.8, 0), V(-89.4, 136.6, 0)), False)
sketch14.addGeometry(Part.ArcOfCircle(Part.Circle(V(-63.5, 136.6, 0), V(0, 0, 1), 1.8), math.radians(180), math.radians(360)), False)
sketch14.addGeometry(Part.LineSegment(V(-65.3, 136.6, 0), V(-65.3, 154.8, 0)), False)
sketch14.addGeometry(Part.ArcOfCircle(Part.Circle(V(-63.5, 154.8, 0), V(0, 0, 1), 1.8), math.radians(0), math.radians(180)), False)
sketch14.addGeometry(Part.LineSegment(V(-61.6, 154.8, 0), V(-61.6, 136.6, 0)), False)
sketch14.addGeometry(Part.ArcOfCircle(Part.Circle(V(-63.5, 112.8, 0), V(0, 0, 1), 1.8), math.radians(180), math.radians(360)), False)
sketch14.addGeometry(Part.LineSegment(V(-65.3, 112.8, 0), V(-65.3, 131, 0)), False)
sketch14.addGeometry(Part.ArcOfCircle(Part.Circle(V(-63.5, 131, 0), V(0, 0, 1), 1.8), math.radians(0), math.radians(180)), False)
sketch14.addGeometry(Part.LineSegment(V(-61.6, 131, 0), V(-61.6, 112.8, 0)), False)
sketch14.addConstraint(Sketcher.Constraint("Tangent", 0, 1, 1, 1))
sketch14.addConstraint(Sketcher.Constraint("Tangent", 1, 2, 2, 2))
sketch14.addConstraint(Sketcher.Constraint("Tangent", 2, 1, 3, 1))
sketch14.addConstraint(Sketcher.Constraint("Tangent", 3, 2, 0, 2))
sketch14.addConstraint(Sketcher.Constraint("Tangent", 4, 1, 5, 1))
sketch14.addConstraint(Sketcher.Constraint("Tangent", 5, 2, 6, 2))
sketch14.addConstraint(Sketcher.Constraint("Tangent", 6, 1, 7, 1))
sketch14.addConstraint(Sketcher.Constraint("Tangent", 7, 2, 4, 2))
sketch14.addConstraint(Sketcher.Constraint("Tangent", 8, 1, 9, 1))
sketch14.addConstraint(Sketcher.Constraint("Tangent", 9, 2, 10, 2))
sketch14.addConstraint(Sketcher.Constraint("Tangent", 10, 1, 11, 1))
sketch14.addConstraint(Sketcher.Constraint("Tangent", 11, 2, 8, 2))
sketch14.addConstraint(Sketcher.Constraint("Tangent", 12, 1, 13, 1))
sketch14.addConstraint(Sketcher.Constraint("Tangent", 13, 2, 14, 2))
sketch14.addConstraint(Sketcher.Constraint("Tangent", 14, 1, 15, 1))
sketch14.addConstraint(Sketcher.Constraint("Tangent", 15, 2, 12, 2))
sketch14.addConstraint(Sketcher.Constraint("Tangent", 16, 1, 17, 1))
sketch14.addConstraint(Sketcher.Constraint("Tangent", 17, 2, 18, 2))
sketch14.addConstraint(Sketcher.Constraint("Tangent", 18, 1, 19, 1))
sketch14.addConstraint(Sketcher.Constraint("Tangent", 19, 2, 16, 2))
sketch14.addConstraint(Sketcher.Constraint("Tangent", 20, 1, 21, 1))
sketch14.addConstraint(Sketcher.Constraint("Tangent", 21, 2, 22, 2))
sketch14.addConstraint(Sketcher.Constraint("Tangent", 22, 1, 23, 1))
sketch14.addConstraint(Sketcher.Constraint("Tangent", 23, 2, 20, 2))
sketch14.addConstraint(Sketcher.Constraint("Tangent", 24, 1, 25, 1))
sketch14.addConstraint(Sketcher.Constraint("Tangent", 25, 2, 26, 2))
sketch14.addConstraint(Sketcher.Constraint("Tangent", 26, 1, 27, 1))
sketch14.addConstraint(Sketcher.Constraint("Tangent", 27, 2, 24, 2))
sketch14.addConstraint(Sketcher.Constraint("Tangent", 28, 1, 29, 1))
sketch14.addConstraint(Sketcher.Constraint("Tangent", 29, 2, 30, 2))
sketch14.addConstraint(Sketcher.Constraint("Tangent", 30, 1, 31, 1))
sketch14.addConstraint(Sketcher.Constraint("Tangent", 31, 2, 28, 2))
sketch14.addConstraint(Sketcher.Constraint("Vertical", 1))
sketch14.addConstraint(Sketcher.Constraint("Vertical", 3))
sketch14.addConstraint(Sketcher.Constraint("Vertical", 5))
sketch14.addConstraint(Sketcher.Constraint("Vertical", 7))
sketch14.addConstraint(Sketcher.Constraint("Vertical", 9))
sketch14.addConstraint(Sketcher.Constraint("Vertical", 11))
sketch14.addConstraint(Sketcher.Constraint("Vertical", 13))
sketch14.addConstraint(Sketcher.Constraint("Vertical", 15))
sketch14.addConstraint(Sketcher.Constraint("Vertical", 17))
sketch14.addConstraint(Sketcher.Constraint("Vertical", 19))
sketch14.addConstraint(Sketcher.Constraint("Vertical", 21))
sketch14.addConstraint(Sketcher.Constraint("Vertical", 23))
sketch14.addConstraint(Sketcher.Constraint("Vertical", 25))
sketch14.addConstraint(Sketcher.Constraint("Vertical", 27))
sketch14.addConstraint(Sketcher.Constraint("Vertical", 29))
sketch14.addConstraint(Sketcher.Constraint("Vertical", 31))
sketch14.addConstraint(Sketcher.Constraint("Equal", 2, 4))
sketch14.addConstraint(Sketcher.Constraint("Equal", 6, 8))
sketch14.addConstraint(Sketcher.Constraint("Equal", 10, 12))
sketch14.addConstraint(Sketcher.Constraint("Equal", 14, 16))
sketch14.addConstraint(Sketcher.Constraint("Equal", 18, 20))
sketch14.addConstraint(Sketcher.Constraint("Equal", 22, 24))
sketch14.addConstraint(Sketcher.Constraint("Equal", 26, 28))
sketch14.addConstraint(Sketcher.Constraint("Horizontal", 0, 3, 8, 3))
sketch14.addConstraint(Sketcher.Constraint("Horizontal", 2, 3, 10, 3))
sketch14.addConstraint(Sketcher.Constraint("Horizontal", 4, 3, 12, 3))
sketch14.addConstraint(Sketcher.Constraint("Horizontal", 6, 3, 14, 3))
sketch14.addConstraint(Sketcher.Constraint("Horizontal", 20, 3, 24, 3))
sketch14.addConstraint(Sketcher.Constraint("Horizontal", 22, 3, 26, 3))
sketch14.addConstraint(Sketcher.Constraint("Horizontal", 16, 3, 28, 3))
sketch14.addConstraint(Sketcher.Constraint("Horizontal", 18, 3, 30, 3))
sketch14.addConstraint(Sketcher.Constraint("Vertical", 2, 3, 4, 3))
sketch14.addConstraint(Sketcher.Constraint("Vertical", 10, 3, 12, 3))
sketch14.addConstraint(Sketcher.Constraint("Vertical", 18, 3, 20, 3))
sketch14.addConstraint(Sketcher.Constraint("Vertical", 26, 3, 28, 3))
sketch14.addConstraint(Sketcher.Constraint("Equal", 3, 5))
sketch14.addConstraint(Sketcher.Constraint("Equal", 15, 17))
sketch14.addConstraint(Sketcher.Constraint("Equal", 19, 21))
sketch14.addConstraint(Sketcher.Constraint("DistanceY", 1, 1, 1, 2, Q("18.2 mm")))
sketch14.addConstraint(Sketcher.Constraint("Radius", 0, Q("1.825 mm")))
sketch14.addConstraint(Sketcher.Constraint("DistanceX", 3, 2, 8, 1, Q("24.1 mm")))
sketch14.addConstraint(Sketcher.Constraint("DistanceX", 23, 2, 24, 1, Q("24.1 mm")))
sketch14.addConstraint(Sketcher.Constraint("DistanceX", -1, 1, 0, 1, Q("61.63 mm")))
sketch14.addConstraint(Sketcher.Constraint("DistanceX", 16, 1, -1, 1, Q("93.03 mm")))
sketch14.addConstraint(Sketcher.Constraint("DistanceY", 2, 3, 4, 3, Q("5.69 mm")))
sketch14.addConstraint(Sketcher.Constraint("DistanceY", 18, 3, 20, 3, Q("5.69 mm")))
sketch14.addConstraint(Sketcher.Constraint("DistanceY", 0, 3, -1, 1, Q("60.89317 mm")))
sketch14.addConstraint(Sketcher.Constraint("DistanceY", -1, 1, 16, 3, Q("112.75866 mm")))
pocket13 = doc.addObject("PartDesign::Pocket", "Pocket012")
body.addObject(pocket13)
pocket13.Profile = sketch14
pocket13.Type = "ThroughAll"
pocket13.Reversed = True
doc.recompute()

fillet = doc.addObject("PartDesign::Fillet", "Fillet")
body.addObject(fillet)
fillet.Base = (pocket13, edges_at(pocket13, [
    (-215, 245.652, 1.5),
    (215, 245.652, 1.5),
    (215, -184.348, 1.5),
    (-215, -184.348, 1.5),
]))
fillet.Radius = 9

# Sketch on XY plane
sketch15 = doc.addObject("Sketcher::SketchObject", "Sketch014")
body.addObject(sketch15)
sketch15.AttachmentSupport = (doc.XY_Plane, [""])
sketch15.MapMode = "FlatFace"
sketch15.addGeometry(Part.Circle(V(-191.5, 51.7, 0), V(0, 0, 1), 2.5), False)
sketch15.addGeometry(Part.Circle(V(-191.5, 9.7, 0), V(0, 0, 1), 2.5), False)
sketch15.addGeometry(Part.Circle(V(-142.5, 51.7, 0), V(0, 0, 1), 2.5), False)
sketch15.addGeometry(Part.Circle(V(-142.5, 9.7, 0), V(0, 0, 1), 2.5), False)
sketch15.addGeometry(Part.Circle(V(191.5, 51.7, 0), V(0, 0, 1), 2.5), False)
sketch15.addGeometry(Part.Circle(V(191.5, 9.7, 0), V(0, 0, 1), 2.5), False)
sketch15.addGeometry(Part.Circle(V(142.5, 9.7, 0), V(0, 0, 1), 2.5), False)
sketch15.addGeometry(Part.Circle(V(142.5, 51.7, 0), V(0, 0, 1), 2.5), False)
sketch15.addConstraint(Sketcher.Constraint("Equal", 0, 1))
sketch15.addConstraint(Sketcher.Constraint("Equal", 1, 2))
sketch15.addConstraint(Sketcher.Constraint("Equal", 2, 3))
sketch15.addConstraint(Sketcher.Constraint("Equal", 3, 4))
sketch15.addConstraint(Sketcher.Constraint("Equal", 4, 5))
sketch15.addConstraint(Sketcher.Constraint("Equal", 5, 6))
sketch15.addConstraint(Sketcher.Constraint("Equal", 6, 7))
sketch15.addConstraint(Sketcher.Constraint("Symmetric", 0, 3, 4, 3, -2))
sketch15.addConstraint(Sketcher.Constraint("Symmetric", 1, 3, 5, 3, -2))
sketch15.addConstraint(Sketcher.Constraint("Symmetric", 3, 3, 6, 3, -2))
sketch15.addConstraint(Sketcher.Constraint("Symmetric", 2, 3, 7, 3, -2))
sketch15.addConstraint(Sketcher.Constraint("Horizontal", 0, 3, 2, 3))
sketch15.addConstraint(Sketcher.Constraint("Horizontal", 1, 3, 3, 3))
sketch15.addConstraint(Sketcher.Constraint("Vertical", 0, 3, 1, 3))
sketch15.addConstraint(Sketcher.Constraint("Vertical", 2, 3, 3, 3))
sketch15.addConstraint(Sketcher.Constraint("Diameter", 0, Q("5 mm")))
sketch15.addConstraint(Sketcher.Constraint("DistanceY", 1, 3, 0, 3, Q("42 mm")))
sketch15.addConstraint(Sketcher.Constraint("DistanceX", 0, 3, 2, 3, Q("49 mm")))
sketch15.addConstraint(Sketcher.Constraint("DistanceX", 2, 3, 4, 3, Q("334 mm")))
sketch15.addConstraint(Sketcher.Constraint("DistanceY", -1, 1, 0, 3, Q("51.65183 mm")))
pocket14 = doc.addObject("PartDesign::Pocket", "Pocket013")
body.addObject(pocket14)
pocket14.Profile = sketch15
pocket14.Type = "ThroughAll"
pocket14.Reversed = True

# Sketch on XY plane
sketch16 = doc.addObject("Sketcher::SketchObject", "Sketch015")
body.addObject(sketch16)
sketch16.AttachmentSupport = (doc.XY_Plane, [""])
sketch16.MapMode = "FlatFace"
sketch16.addGeometry(Part.Circle(V(-63.2, 55.7, 0), V(0, 0, 1), 2.5), False)
sketch16.addGeometry(Part.Circle(V(-63.2, 5.7, 0), V(0, 0, 1), 2.5), False)
sketch16.addGeometry(Part.Circle(V(63.2, 55.7, 0), V(0, 0, 1), 2.5), False)
sketch16.addGeometry(Part.Circle(V(63.2, 5.7, 0), V(0, 0, 1), 2.5), False)
sketch16.addConstraint(Sketcher.Constraint("Equal", 0, 1))
sketch16.addConstraint(Sketcher.Constraint("Equal", 1, 2))
sketch16.addConstraint(Sketcher.Constraint("Equal", 2, 3))
sketch16.addConstraint(Sketcher.Constraint("Symmetric", 0, 3, 2, 3, -2))
sketch16.addConstraint(Sketcher.Constraint("Symmetric", 1, 3, 3, 3, -2))
sketch16.addConstraint(Sketcher.Constraint("Vertical", 0, 3, 1, 3))
sketch16.addConstraint(Sketcher.Constraint("Diameter", 0, Q("5 mm")))
sketch16.addConstraint(Sketcher.Constraint("DistanceY", 1, 3, 0, 3, Q("50 mm")))
sketch16.addConstraint(Sketcher.Constraint("DistanceX", 0, 3, -1, 1, Q("63.2 mm")))
sketch16.addConstraint(Sketcher.Constraint("DistanceY", -1, 1, 0, 3, Q("55.65183 mm")))
pocket15 = doc.addObject("PartDesign::Pocket", "Pocket014")
body.addObject(pocket15)
pocket15.Profile = sketch16
pocket15.Type = "ThroughAll"
pocket15.Reversed = True

doc.recompute()
